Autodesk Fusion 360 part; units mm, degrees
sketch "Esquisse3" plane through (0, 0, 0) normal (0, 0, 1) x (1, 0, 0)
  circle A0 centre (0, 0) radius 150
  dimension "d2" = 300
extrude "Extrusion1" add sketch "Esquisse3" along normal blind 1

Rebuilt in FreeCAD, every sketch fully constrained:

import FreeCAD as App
import Part
import Sketcher

doc = App.newDocument("Part")
body = doc.addObject("PartDesign::Body", "Body")

# Sketch on XY plane
sketch1 = body.newObject("Sketcher::SketchObject", "Sketch")
sketch1.AttachmentSupport = (doc.getObject("XY_Plane"), [""])
sketch1.MapMode = "FlatFace"
sketch1.addGeometry(Part.Circle(App.Vector(0, 0, 0), App.Vector(0, 0, 1), 150), False)
sketch1.addConstraint(Sketcher.Constraint("Coincident", 0, 3, -1, 1))
sketch1.addConstraint(Sketcher.Constraint("Diameter", 0, 300.0))
pad1 = body.newObject("PartDesign::Pad", "Pad")
pad1.Profile = sketch1
pad1.Length = 1

doc.recompute()
